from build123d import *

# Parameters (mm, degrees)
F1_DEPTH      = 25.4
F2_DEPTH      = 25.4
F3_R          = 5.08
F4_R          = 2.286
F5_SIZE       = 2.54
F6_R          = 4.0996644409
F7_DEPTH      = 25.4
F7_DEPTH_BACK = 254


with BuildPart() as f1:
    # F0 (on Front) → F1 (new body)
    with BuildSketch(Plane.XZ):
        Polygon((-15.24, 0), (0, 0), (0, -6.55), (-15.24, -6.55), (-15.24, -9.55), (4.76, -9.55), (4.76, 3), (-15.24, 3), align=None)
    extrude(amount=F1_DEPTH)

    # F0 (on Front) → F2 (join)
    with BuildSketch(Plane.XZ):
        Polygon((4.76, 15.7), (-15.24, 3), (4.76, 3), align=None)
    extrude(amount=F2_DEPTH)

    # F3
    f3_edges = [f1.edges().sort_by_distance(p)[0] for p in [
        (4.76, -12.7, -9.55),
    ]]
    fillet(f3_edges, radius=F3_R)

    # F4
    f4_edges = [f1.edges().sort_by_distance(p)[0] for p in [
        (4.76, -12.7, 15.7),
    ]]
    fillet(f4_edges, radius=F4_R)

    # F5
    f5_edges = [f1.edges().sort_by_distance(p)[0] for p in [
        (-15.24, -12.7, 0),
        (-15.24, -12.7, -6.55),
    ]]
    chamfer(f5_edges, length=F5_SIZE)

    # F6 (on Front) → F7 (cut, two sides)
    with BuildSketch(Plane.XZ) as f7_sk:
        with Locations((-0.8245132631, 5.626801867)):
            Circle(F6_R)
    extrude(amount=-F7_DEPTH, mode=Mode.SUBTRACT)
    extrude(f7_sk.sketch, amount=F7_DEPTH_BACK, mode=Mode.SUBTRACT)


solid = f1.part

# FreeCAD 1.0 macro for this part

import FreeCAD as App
import Part
import Sketcher
from FreeCAD import Vector
Q = App.Units.Quantity


def edges_at(feature, points):
    """Names of the edges that pass closest to the given points."""
    edges = feature.Shape.Edges
    near = lambda p: min(range(len(edges)), key=lambda i: edges[i].distToShape(Part.Vertex(*p))[0])
    return sorted({f"Edge{near(p) + 1}" for p in points})

doc = App.newDocument("Part")
body = doc.addObject("PartDesign::Body", "Body")

# Sketch on XZ plane
sketch1 = body.newObject("Sketcher::SketchObject", "Sketch")
sketch1.AttachmentSupport = (doc.getObject("XZ_Plane"), [""])
sketch1.MapMode = "FlatFace"
sketch1.addGeometry(Part.LineSegment(Vector(-15.2, 0, 0), Vector(0, 0, 0)), False)
sketch1.addGeometry(Part.LineSegment(Vector(0, 0, 0), Vector(0, -6.5, 0)), False)
sketch1.addGeometry(Part.LineSegment(Vector(0, -6.5, 0), Vector(-15.2, -6.5, 0)), False)
sketch1.addGeometry(Part.LineSegment(Vector(-15.2, -6.5, 0), Vector(-15.2, -9.6, 0)), False)
sketch1.addGeometry(Part.LineSegment(Vector(-15.2, -9.6, 0), Vector(4.8, -9.6, 0)), False)
sketch1.addGeometry(Part.LineSegment(Vector(4.8, -9.6, 0), Vector(4.8, 3, 0)), False)
sketch1.addGeometry(Part.LineSegment(Vector(4.8, 3, 0), Vector(-15.2, 3, 0)), False)
sketch1.addGeometry(Part.LineSegment(Vector(-15.2, 3, 0), Vector(-15.2, 0, 0)), False)
sketch1.addConstraint(Sketcher.Constraint("Coincident", 0, 2, 1, 1))
sketch1.addConstraint(Sketcher.Constraint("Coincident", 1, 2, 2, 1))
sketch1.addConstraint(Sketcher.Constraint("Coincident", 2, 2, 3, 1))
sketch1.addConstraint(Sketcher.Constraint("Coincident", 3, 2, 4, 1))
sketch1.addConstraint(Sketcher.Constraint("Coincident", 4, 2, 5, 1))
sketch1.addConstraint(Sketcher.Constraint("Coincident", 5, 2, 6, 1))
sketch1.addConstraint(Sketcher.Constraint("Coincident", 6, 2, 7, 1))
sketch1.addConstraint(Sketcher.Constraint("Coincident", 7, 2, 0, 1))
sketch1.addConstraint(Sketcher.Constraint("Horizontal", 0))
sketch1.addConstraint(Sketcher.Constraint("Vertical", 1))
sketch1.addConstraint(Sketcher.Constraint("Horizontal", 2))
sketch1.addConstraint(Sketcher.Constraint("Vertical", 3))
sketch1.addConstraint(Sketcher.Constraint("Horizontal", 4))
sketch1.addConstraint(Sketcher.Constraint("Vertical", 5))
sketch1.addConstraint(Sketcher.Constraint("Horizontal", 6))
sketch1.addConstraint(Sketcher.Constraint("Vertical", 7))
sketch1.addConstraint(Sketcher.Constraint("Coincident", 0, 2, -1, 1))
sketch1.addConstraint(Sketcher.Constraint("Vertical", 3, 2, 6, 2))
sketch1.addConstraint(Sketcher.Constraint("Equal", 3, 7))
sketch1.addConstraint(Sketcher.Constraint("DistanceX", 0, 1, 0, 2, Q("0.6 in")))
sketch1.addConstraint(Sketcher.Constraint("DistanceX", 4, 1, 4, 2, 20.0))
sketch1.addConstraint(Sketcher.Constraint("DistanceY", 1, 2, 1, 1, 6.55))
sketch1.addConstraint(Sketcher.Constraint("DistanceY", 3, 2, 3, 1, 3.0))
pad1 = body.newObject("PartDesign::Pad", "Pad")
pad1.Profile = sketch1
pad1.Length = Q("1 in")

# Sketch on XZ plane
sketch2 = body.newObject("Sketcher::SketchObject", "Sketch001")
sketch2.AttachmentSupport = (doc.getObject("XZ_Plane"), [""])
sketch2.MapMode = "FlatFace"
sketch2.addGeometry(Part.LineSegment(Vector(5, 16, 0), Vector(-15, 3, 0)), False)
sketch2.addGeometry(Part.LineSegment(Vector(-15, 3, 0), Vector(5, 3, 0)), False)
sketch2.addGeometry(Part.LineSegment(Vector(5, 3, 0), Vector(5, 16, 0)), False)
sketch2.addConstraint(Sketcher.Constraint("Coincident", 0, 2, 1, 1))
sketch2.addConstraint(Sketcher.Constraint("Coincident", 1, 2, 2, 1))
sketch2.addConstraint(Sketcher.Constraint("Coincident", 2, 2, 0, 1))
sketch2.addConstraint(Sketcher.Constraint("Horizontal", 1))
sketch2.addConstraint(Sketcher.Constraint("Vertical", 2))
sketch2.addConstraint(Sketcher.Constraint("DistanceY", 2, 1, 2, 2, Q("0.5 in")))
sketch2.addConstraint(Sketcher.Constraint("DistanceX", 0, 2, -1, 1, Q("0.6 in")))
sketch2.addConstraint(Sketcher.Constraint("DistanceX", 1, 1, 1, 2, 20.0))
sketch2.addConstraint(Sketcher.Constraint("DistanceY", -1, 1, 0, 2, 3.0))
pad2 = body.newObject("PartDesign::Pad", "Pad001")
pad2.Profile = sketch2
pad2.Length = Q("1 in")
doc.recompute()

fillet = body.newObject("PartDesign::Fillet", "Fillet")
fillet.Base = (pad2, edges_at(pad2, [(4.76, -12.7, -9.55)]))
fillet.Radius = Q("0.2 in")
doc.recompute()

fillet2 = body.newObject("PartDesign::Fillet", "Fillet001")
fillet2.Base = (fillet, edges_at(fillet, [(4.76, -12.7, 15.7)]))
fillet2.Radius = Q("0.09 in")
doc.recompute()

chamfer = body.newObject("PartDesign::Chamfer", "Chamfer")
chamfer.Base = (fillet2, edges_at(fillet2, [(-15.24, -12.7, 0), (-15.24, -12.7, -6.55)]))
chamfer.Size = Q("0.1 in")

# Sketch on XZ plane
sketch3 = body.newObject("Sketcher::SketchObject", "Sketch002")
sketch3.AttachmentSupport = (doc.getObject("XZ_Plane"), [""])
sketch3.MapMode = "FlatFace"
sketch3.addGeometry(Part.Circle(Vector(-0.8, 5.6, 0), Vector(0, 0, 1), 4.1), False)
sketch3.addConstraint(Sketcher.Constraint("Diameter", 0, 8.199329))
sketch3.addConstraint(Sketcher.Constraint("DistanceY", -1, 1, 0, 3, 5.626802))
sketch3.addConstraint(Sketcher.Constraint("DistanceX", 0, 3, -1, 1, 0.824513))
pocket1 = body.newObject("PartDesign::Pocket", "Pocket")
pocket1.Profile = sketch3
pocket1.Type = "ThroughAll"
pocket1.Midplane = True

doc.recompute()
